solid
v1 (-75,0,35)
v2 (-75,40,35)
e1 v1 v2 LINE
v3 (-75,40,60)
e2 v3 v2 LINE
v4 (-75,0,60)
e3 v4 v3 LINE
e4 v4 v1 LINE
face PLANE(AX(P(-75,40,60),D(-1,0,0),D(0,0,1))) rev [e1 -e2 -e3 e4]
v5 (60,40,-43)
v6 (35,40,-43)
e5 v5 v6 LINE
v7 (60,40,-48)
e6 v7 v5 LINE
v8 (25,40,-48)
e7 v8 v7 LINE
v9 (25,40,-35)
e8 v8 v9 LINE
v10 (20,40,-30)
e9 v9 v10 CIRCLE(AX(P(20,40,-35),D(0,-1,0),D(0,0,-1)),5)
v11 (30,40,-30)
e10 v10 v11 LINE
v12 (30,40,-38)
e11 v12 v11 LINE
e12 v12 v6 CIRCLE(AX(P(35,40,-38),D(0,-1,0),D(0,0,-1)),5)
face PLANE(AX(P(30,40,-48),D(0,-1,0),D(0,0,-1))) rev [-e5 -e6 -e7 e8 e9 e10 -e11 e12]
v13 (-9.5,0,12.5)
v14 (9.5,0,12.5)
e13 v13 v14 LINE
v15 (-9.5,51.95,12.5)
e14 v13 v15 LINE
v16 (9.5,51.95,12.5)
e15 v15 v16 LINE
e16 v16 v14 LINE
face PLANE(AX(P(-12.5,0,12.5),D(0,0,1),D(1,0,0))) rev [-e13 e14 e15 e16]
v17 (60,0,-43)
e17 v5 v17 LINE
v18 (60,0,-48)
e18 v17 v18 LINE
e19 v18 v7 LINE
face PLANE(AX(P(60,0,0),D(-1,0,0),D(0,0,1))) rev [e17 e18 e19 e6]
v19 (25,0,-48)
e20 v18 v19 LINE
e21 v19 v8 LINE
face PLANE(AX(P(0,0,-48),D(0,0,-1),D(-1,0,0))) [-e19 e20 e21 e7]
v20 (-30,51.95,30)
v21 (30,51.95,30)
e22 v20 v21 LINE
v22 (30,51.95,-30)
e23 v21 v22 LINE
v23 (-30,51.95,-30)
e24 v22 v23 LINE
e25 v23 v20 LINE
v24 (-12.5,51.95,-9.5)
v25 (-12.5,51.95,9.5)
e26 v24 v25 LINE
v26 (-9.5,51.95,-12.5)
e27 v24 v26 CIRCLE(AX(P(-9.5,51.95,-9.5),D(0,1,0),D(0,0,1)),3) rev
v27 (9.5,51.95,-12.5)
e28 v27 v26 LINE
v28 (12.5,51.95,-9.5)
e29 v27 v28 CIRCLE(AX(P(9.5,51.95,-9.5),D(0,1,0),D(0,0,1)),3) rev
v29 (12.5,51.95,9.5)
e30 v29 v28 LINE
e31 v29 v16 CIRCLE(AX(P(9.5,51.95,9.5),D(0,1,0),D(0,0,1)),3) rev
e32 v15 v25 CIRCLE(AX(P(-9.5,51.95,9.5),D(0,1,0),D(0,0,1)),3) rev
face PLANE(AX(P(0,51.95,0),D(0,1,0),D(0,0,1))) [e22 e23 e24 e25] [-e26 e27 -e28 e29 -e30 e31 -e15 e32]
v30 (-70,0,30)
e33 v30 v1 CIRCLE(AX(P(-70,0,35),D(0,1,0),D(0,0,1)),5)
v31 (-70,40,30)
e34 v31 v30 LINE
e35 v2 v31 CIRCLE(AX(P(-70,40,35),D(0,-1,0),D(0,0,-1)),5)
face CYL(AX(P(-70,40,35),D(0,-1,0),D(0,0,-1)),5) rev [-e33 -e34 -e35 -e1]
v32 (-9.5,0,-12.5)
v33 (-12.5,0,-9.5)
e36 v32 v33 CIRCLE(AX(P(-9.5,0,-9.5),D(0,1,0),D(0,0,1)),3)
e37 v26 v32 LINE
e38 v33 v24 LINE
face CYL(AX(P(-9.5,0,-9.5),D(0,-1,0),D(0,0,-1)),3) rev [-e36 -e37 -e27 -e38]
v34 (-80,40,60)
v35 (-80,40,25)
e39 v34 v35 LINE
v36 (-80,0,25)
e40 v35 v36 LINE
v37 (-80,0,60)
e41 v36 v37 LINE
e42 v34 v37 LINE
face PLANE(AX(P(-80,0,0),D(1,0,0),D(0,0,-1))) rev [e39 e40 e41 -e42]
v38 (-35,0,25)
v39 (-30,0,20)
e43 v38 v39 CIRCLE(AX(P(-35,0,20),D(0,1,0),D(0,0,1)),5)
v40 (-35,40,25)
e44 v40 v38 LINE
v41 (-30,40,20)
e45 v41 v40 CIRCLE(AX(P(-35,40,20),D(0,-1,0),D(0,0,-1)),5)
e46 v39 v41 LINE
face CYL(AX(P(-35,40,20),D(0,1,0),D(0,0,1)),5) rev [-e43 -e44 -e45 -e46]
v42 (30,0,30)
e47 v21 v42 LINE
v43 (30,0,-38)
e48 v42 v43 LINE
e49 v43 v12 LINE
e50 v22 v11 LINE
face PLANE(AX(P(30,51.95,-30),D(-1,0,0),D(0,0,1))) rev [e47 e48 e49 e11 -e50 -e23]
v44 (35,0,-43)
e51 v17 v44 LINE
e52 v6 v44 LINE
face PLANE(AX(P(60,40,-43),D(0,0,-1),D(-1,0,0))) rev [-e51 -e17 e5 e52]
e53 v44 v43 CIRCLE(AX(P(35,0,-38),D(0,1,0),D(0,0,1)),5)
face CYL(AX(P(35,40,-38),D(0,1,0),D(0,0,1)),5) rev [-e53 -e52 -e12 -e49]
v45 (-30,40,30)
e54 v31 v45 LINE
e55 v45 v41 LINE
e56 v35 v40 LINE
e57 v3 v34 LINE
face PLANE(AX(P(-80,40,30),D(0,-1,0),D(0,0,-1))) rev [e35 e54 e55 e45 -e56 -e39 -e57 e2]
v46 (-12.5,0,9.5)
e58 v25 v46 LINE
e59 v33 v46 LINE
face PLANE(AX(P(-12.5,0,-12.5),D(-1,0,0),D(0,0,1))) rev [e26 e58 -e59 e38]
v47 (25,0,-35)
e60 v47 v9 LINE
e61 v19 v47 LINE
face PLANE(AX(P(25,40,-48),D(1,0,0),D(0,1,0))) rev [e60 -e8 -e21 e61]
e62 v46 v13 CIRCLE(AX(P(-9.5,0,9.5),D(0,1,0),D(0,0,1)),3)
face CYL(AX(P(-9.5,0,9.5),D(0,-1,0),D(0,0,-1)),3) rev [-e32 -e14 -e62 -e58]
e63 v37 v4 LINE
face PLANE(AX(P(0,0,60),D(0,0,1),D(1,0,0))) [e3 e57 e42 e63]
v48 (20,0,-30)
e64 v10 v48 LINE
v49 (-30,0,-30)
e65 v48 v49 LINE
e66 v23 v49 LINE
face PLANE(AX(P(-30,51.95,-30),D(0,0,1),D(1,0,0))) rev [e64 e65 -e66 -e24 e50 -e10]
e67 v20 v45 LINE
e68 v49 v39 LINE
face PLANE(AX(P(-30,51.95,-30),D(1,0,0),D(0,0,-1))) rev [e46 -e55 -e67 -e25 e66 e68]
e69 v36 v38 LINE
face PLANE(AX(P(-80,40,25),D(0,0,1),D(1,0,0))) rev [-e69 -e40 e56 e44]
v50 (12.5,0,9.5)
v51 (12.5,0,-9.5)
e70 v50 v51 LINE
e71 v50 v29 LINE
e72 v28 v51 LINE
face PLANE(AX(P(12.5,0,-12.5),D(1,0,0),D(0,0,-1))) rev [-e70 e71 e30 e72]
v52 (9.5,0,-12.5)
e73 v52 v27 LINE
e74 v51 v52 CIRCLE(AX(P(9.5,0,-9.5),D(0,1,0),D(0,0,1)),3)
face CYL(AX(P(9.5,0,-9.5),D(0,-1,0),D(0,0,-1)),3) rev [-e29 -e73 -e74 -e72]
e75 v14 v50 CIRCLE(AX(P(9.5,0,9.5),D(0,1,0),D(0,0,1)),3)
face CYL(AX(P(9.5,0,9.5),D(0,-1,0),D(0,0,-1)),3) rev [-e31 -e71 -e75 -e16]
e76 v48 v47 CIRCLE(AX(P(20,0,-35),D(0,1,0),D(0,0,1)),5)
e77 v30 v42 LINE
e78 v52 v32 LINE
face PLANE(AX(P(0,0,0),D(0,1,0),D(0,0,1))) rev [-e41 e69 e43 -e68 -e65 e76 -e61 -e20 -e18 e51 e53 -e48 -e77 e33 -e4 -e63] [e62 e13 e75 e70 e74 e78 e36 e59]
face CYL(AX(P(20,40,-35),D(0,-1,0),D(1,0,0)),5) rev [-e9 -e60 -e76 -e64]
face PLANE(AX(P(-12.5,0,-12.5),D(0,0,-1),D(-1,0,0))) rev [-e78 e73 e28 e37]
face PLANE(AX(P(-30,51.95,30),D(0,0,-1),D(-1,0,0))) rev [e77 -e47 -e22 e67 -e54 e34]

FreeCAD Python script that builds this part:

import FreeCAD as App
import Part
import Sketcher
from FreeCAD import Vector
Q = App.Units.Quantity


def edges_at(feature, points):
    """Names of the edges that pass closest to the given points."""
    edges = feature.Shape.Edges
    near = lambda p: min(range(len(edges)), key=lambda i: edges[i].distToShape(Part.Vertex(*p))[0])
    return sorted({f"Edge{near(p) + 1}" for p in points})


def add_polygon(sketch, points):
    """Adds a closed chain of lines whose ends are joined by coincident constraints."""
    first, n = sketch.GeometryCount, len(points)
    for a, b in zip(points, points[1:] + points[:1]):
        sketch.addGeometry(Part.LineSegment(App.Vector(*a, 0), App.Vector(*b, 0)), False)
    for i in range(n):
        sketch.addConstraint(Sketcher.Constraint("Coincident", first + i, 2, first + (i + 1) % n, 1))

doc = App.newDocument("Part")
params = doc.addObject("Spreadsheet::Sheet", "Params")
for row, (alias, value) in enumerate([
    ("sketch1_width", "60 mm"),
    ("pad1_length", "51.95 mm"),
    ("sketch2_width", "5 mm"),
    ("sketch2_height", "40 mm"),
    ("pad2_length", "18 mm"),
    ("sketch3_width", "40 mm"),
    ("sketch3_height", "5 mm"),
    ("pad3_length", "30 mm"),
    ("sketch4_width", "40 mm"),
    ("sketch4_height", "5 mm"),
    ("pad4_length", "50 mm"),
    ("sketch5_width", "5 mm"),
    ("sketch5_height", "40 mm"),
    ("pad5_length", "30 mm"),
    ("sketch6_width", "25 mm"),
    ("fillet_radius", "3 mm"),
    ("fillet2_radius", "5 mm"),
    ("fillet3_radius", "5 mm"),
], start=1):
    params.set(f"A{row}", alias)
    params.set(f"B{row}", "=" + value)
    params.setAlias(f"B{row}", alias)

body = doc.addObject("PartDesign::Body", "Body")

sketch1 = body.newObject("Sketcher::SketchObject", "Sketch")
sketch1.AttachmentSupport = (doc.getObject("XZ_Plane"), [""])
sketch1.MapMode = "FlatFace"
add_polygon(sketch1, [(-30, -30), (-30, 30), (30, 30), (30, -30)])
sketch1.addConstraint([
    Sketcher.Constraint("Vertical", 0),
    Sketcher.Constraint("Horizontal", 1),
    Sketcher.Constraint("Vertical", 2),
    Sketcher.Constraint("Horizontal", 3),
    Sketcher.Constraint("Symmetric", 0, 2, 2, 2, -1, 1),
    Sketcher.Constraint("Equal", 3, 0),
    Sketcher.Constraint("DistanceX", 1, 1, 1, 2, Q("60 mm")),
])
sketch1.setExpression("Constraints[10]", "Params.sketch1_width")
pad1 = body.newObject("PartDesign::Pad", "Pad")
pad1.Profile = sketch1
pad1.setExpression("Length", "Params.pad1_length")
pad1.Reversed = True

sketch2 = body.newObject("Sketcher::SketchObject", "Sketch001")
sketch2.AttachmentSupport = (doc.getObject("XY_Plane"), [""])
sketch2.MapMode = "FlatFace"
sketch2.AttachmentOffset = App.Placement(Vector(0, 0, -30), App.Rotation())
add_polygon(sketch2, [(30, 40), (30, 0), (25, 0), (25, 40)])
sketch2.addConstraint([
    Sketcher.Constraint("Vertical", 0),
    Sketcher.Constraint("Horizontal", 1),
    Sketcher.Constraint("Vertical", 2),
    Sketcher.Constraint("Horizontal", 3),
    Sketcher.Constraint("PointOnObject", 0, 2, -1),
    Sketcher.Constraint("DistanceX", 1, 2, 1, 1, Q("5 mm")),
    Sketcher.Constraint("DistanceY", 0, 2, 0, 1, Q("40 mm")),
    Sketcher.Constraint("DistanceX", -1, 1, 0, 2, Q("30 mm")),
])
sketch2.setExpression("Constraints[9]", "Params.sketch2_width")
sketch2.setExpression("Constraints[10]", "Params.sketch2_height")
pad2 = body.newObject("PartDesign::Pad", "Pad001")
pad2.Profile = sketch2
pad2.setExpression("Length", "Params.pad2_length")
pad2.Reversed = True

sketch3 = body.newObject("Sketcher::SketchObject", "Sketch002")
sketch3.AttachmentSupport = (doc.getObject("YZ_Plane"), [""])
sketch3.MapMode = "FlatFace"
sketch3.AttachmentOffset = App.Placement(Vector(0, 0, 30), App.Rotation())
add_polygon(sketch3, [(40, -43), (0, -43), (0, -48), (40, -48)])
sketch3.addConstraint([
    Sketcher.Constraint("Horizontal", 0),
    Sketcher.Constraint("Vertical", 1),
    Sketcher.Constraint("Horizontal", 2),
    Sketcher.Constraint("Vertical", 3),
    Sketcher.Constraint("PointOnObject", 0, 2, -2),
    Sketcher.Constraint("DistanceX", 0, 2, 0, 1, Q("40 mm")),
    Sketcher.Constraint("DistanceY", 1, 2, 1, 1, Q("5 mm")),
    Sketcher.Constraint("DistanceY", 0, 2, -1, 1, Q("43 mm")),
])
sketch3.setExpression("Constraints[9]", "Params.sketch3_width")
sketch3.setExpression("Constraints[10]", "Params.sketch3_height")
pad3 = body.newObject("PartDesign::Pad", "Pad002")
pad3.Profile = sketch3
pad3.setExpression("Length", "Params.pad3_length")

sketch4 = body.newObject("Sketcher::SketchObject", "Sketch003")
sketch4.AttachmentSupport = (doc.getObject("YZ_Plane"), [""])
sketch4.MapMode = "FlatFace"
sketch4.AttachmentOffset = App.Placement(Vector(0, 0, -30), App.Rotation())
add_polygon(sketch4, [(40, 25), (0, 25), (0, 30), (40, 30)])
sketch4.addConstraint([
    Sketcher.Constraint("Horizontal", 0),
    Sketcher.Constraint("Vertical", 1),
    Sketcher.Constraint("Horizontal", 2),
    Sketcher.Constraint("Vertical", 3),
    Sketcher.Constraint("PointOnObject", 0, 2, -2),
    Sketcher.Constraint("DistanceX", 0, 2, 0, 1, Q("40 mm")),
    Sketcher.Constraint("DistanceY", 1, 1, 1, 2, Q("5 mm")),
    Sketcher.Constraint("DistanceY", -1, 1, 0, 2, Q("25 mm")),
])
sketch4.setExpression("Constraints[9]", "Params.sketch4_width")
sketch4.setExpression("Constraints[10]", "Params.sketch4_height")
pad4 = body.newObject("PartDesign::Pad", "Pad003")
pad4.Profile = sketch4
pad4.setExpression("Length", "Params.pad4_length")
pad4.Reversed = True

sketch5 = body.newObject("Sketcher::SketchObject", "Sketch004")
sketch5.AttachmentSupport = (doc.getObject("XY_Plane"), [""])
sketch5.MapMode = "FlatFace"
sketch5.AttachmentOffset = App.Placement(Vector(0, 0, 30), App.Rotation())
add_polygon(sketch5, [(-80, 40), (-80, 0), (-75, 0), (-75, 40)])
sketch5.addConstraint([
    Sketcher.Constraint("Vertical", 0),
    Sketcher.Constraint("Horizontal", 1),
    Sketcher.Constraint("Vertical", 2),
    Sketcher.Constraint("Horizontal", 3),
    Sketcher.Constraint("PointOnObject", 0, 2, -1),
    Sketcher.Constraint("DistanceX", 1, 1, 1, 2, Q("5 mm")),
    Sketcher.Constraint("DistanceY", 0, 2, 0, 1, Q("40 mm")),
    Sketcher.Constraint("DistanceX", 0, 2, -1, 1, Q("80 mm")),
])
sketch5.setExpression("Constraints[9]", "Params.sketch5_width")
sketch5.setExpression("Constraints[10]", "Params.sketch5_height")
pad5 = body.newObject("PartDesign::Pad", "Pad004")
pad5.Profile = sketch5
pad5.setExpression("Length", "Params.pad5_length")

sketch6 = body.newObject("Sketcher::SketchObject", "Sketch005")
sketch6.AttachmentSupport = (doc.getObject("XZ_Plane"), [""])
sketch6.MapMode = "FlatFace"
sketch6.AttachmentOffset = App.Placement(Vector(0, 0, -51.95), App.Rotation())
add_polygon(sketch6, [(-12, -12), (-12, 12), (12, 12), (12, -12)])
sketch6.addConstraint([
    Sketcher.Constraint("Vertical", 0),
    Sketcher.Constraint("Horizontal", 1),
    Sketcher.Constraint("Vertical", 2),
    Sketcher.Constraint("Horizontal", 3),
    Sketcher.Constraint("Symmetric", 0, 2, 2, 2, -1, 1),
    Sketcher.Constraint("Equal", 3, 0),
    Sketcher.Constraint("DistanceX", 1, 1, 1, 2, Q("25 mm")),
])
sketch6.setExpression("Constraints[10]", "Params.sketch6_width")
pocket1 = body.newObject("PartDesign::Pocket", "Pocket")
pocket1.Profile = sketch6
pocket1.Type = "ThroughAll"
pocket1.Reversed = True
doc.recompute()

fillet = body.newObject("PartDesign::Fillet", "Fillet")
fillet.Base = (pocket1, edges_at(pocket1, [
    (12.5, 25.975, -12.5),
    (12.5, 25.975, 12.5),
    (-12.5, 25.975, 12.5),
    (-12.5, 25.975, -12.5),
]))
fillet.setExpression("Radius", "Params.fillet_radius")
doc.recompute()

fillet2 = body.newObject("PartDesign::Fillet", "Fillet001")
fillet2.Base = (fillet, edges_at(fillet, [(30, 20, -43), (-75, 20, 30)]))
fillet2.setExpression("Radius", "Params.fillet2_radius")
doc.recompute()

fillet3 = body.newObject("PartDesign::Fillet", "Fillet002")
fillet3.Base = (fillet2, edges_at(fillet2, [(25, 20, -30), (-30, 20, 25)]))
fillet3.setExpression("Radius", "Params.fillet3_radius")

doc.recompute()
